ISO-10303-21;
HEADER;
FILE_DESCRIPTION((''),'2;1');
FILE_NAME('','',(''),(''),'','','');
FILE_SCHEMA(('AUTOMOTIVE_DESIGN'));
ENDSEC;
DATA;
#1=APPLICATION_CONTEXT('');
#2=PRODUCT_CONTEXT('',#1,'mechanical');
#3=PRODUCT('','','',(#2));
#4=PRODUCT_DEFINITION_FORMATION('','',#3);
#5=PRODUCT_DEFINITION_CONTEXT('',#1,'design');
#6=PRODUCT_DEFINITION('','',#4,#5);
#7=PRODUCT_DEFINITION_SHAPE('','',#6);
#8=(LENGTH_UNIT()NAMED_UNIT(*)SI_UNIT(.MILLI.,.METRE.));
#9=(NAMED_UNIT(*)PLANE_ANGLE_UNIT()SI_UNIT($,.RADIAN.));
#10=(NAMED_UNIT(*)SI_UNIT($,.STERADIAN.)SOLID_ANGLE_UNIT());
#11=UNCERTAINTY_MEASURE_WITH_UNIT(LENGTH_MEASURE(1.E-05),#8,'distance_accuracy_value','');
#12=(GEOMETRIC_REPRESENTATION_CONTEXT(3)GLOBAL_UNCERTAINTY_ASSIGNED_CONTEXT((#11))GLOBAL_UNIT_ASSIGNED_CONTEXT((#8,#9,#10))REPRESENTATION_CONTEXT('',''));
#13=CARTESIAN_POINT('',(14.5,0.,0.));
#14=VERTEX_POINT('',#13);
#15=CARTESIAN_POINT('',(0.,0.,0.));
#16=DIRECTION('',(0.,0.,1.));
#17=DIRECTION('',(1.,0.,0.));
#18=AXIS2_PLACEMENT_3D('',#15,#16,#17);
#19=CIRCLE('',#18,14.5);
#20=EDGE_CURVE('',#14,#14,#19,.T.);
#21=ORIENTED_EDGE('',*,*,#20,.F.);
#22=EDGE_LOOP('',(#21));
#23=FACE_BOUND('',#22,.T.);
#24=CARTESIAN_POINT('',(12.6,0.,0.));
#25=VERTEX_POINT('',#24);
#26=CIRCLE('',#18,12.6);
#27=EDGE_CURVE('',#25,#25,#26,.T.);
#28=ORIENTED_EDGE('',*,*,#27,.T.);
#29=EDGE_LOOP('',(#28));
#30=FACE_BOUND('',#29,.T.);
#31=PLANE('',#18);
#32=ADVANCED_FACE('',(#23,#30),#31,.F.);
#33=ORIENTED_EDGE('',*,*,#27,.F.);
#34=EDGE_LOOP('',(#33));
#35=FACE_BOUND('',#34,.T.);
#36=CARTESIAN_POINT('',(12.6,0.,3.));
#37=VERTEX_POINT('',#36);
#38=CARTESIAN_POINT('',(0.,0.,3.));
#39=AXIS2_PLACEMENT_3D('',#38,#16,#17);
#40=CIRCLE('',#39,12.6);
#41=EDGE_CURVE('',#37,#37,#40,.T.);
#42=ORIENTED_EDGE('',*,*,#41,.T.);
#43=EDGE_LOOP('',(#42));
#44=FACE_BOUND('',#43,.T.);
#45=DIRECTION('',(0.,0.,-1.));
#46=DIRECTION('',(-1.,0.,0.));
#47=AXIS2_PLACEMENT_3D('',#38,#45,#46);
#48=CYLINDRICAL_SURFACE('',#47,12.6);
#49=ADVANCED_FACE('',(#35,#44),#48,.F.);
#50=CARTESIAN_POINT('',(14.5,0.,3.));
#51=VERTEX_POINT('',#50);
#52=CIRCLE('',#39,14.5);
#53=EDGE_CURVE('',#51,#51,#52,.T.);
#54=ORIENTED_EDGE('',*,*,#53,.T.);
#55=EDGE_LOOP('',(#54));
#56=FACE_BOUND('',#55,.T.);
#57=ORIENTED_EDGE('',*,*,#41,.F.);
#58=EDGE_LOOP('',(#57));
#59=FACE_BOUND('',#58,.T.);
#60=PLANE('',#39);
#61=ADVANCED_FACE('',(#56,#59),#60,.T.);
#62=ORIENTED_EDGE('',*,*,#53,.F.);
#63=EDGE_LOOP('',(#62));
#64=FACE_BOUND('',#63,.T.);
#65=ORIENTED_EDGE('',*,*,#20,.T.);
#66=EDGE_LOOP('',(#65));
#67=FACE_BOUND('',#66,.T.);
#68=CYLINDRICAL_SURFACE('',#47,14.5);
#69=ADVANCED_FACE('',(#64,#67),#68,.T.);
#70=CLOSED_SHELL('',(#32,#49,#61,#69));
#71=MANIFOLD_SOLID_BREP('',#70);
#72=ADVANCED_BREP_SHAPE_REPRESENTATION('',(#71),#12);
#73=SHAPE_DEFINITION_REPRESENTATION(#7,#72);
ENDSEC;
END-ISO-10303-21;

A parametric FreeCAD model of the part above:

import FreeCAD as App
import Part
import Sketcher

doc = App.newDocument("Part")
params = doc.addObject("Spreadsheet::Sheet", "Params")
for row, (alias, value) in enumerate([
    ("sketch1_diameter", "29 mm"),
    ("sketch1_diameter2", "25.2 mm"),
    ("pad1_length", "3 mm"),
], start=1):
    params.set(f"A{row}", alias)
    params.set(f"B{row}", "=" + value)
    params.setAlias(f"B{row}", alias)

body = doc.addObject("PartDesign::Body", "Body")

# Sketch on XY plane
sketch1 = body.newObject("Sketcher::SketchObject", "Sketch")
sketch1.AttachmentSupport = (doc.getObject("XY_Plane"), [""])
sketch1.MapMode = "FlatFace"
sketch1.addGeometry([
    Part.Circle(App.Vector(0, 0, 0), App.Vector(0, 0, 1), 14),
    Part.Circle(App.Vector(0, 0, 0), App.Vector(0, 0, 1), 13),
], False)
sketch1.addConstraint([
    Sketcher.Constraint("Coincident", 0, 3, -1, 1),
    Sketcher.Constraint("Coincident", 1, 3, -1, 1),
    Sketcher.Constraint("Diameter", 0, 29.0),
    Sketcher.Constraint("Diameter", 1, 25.2),
])
sketch1.setExpression("Constraints[2]", "Params.sketch1_diameter")
sketch1.setExpression("Constraints[3]", "Params.sketch1_diameter2")
pad1 = body.newObject("PartDesign::Pad", "Pad")
pad1.Profile = sketch1
pad1.setExpression("Length", "Params.pad1_length")

doc.recompute()
